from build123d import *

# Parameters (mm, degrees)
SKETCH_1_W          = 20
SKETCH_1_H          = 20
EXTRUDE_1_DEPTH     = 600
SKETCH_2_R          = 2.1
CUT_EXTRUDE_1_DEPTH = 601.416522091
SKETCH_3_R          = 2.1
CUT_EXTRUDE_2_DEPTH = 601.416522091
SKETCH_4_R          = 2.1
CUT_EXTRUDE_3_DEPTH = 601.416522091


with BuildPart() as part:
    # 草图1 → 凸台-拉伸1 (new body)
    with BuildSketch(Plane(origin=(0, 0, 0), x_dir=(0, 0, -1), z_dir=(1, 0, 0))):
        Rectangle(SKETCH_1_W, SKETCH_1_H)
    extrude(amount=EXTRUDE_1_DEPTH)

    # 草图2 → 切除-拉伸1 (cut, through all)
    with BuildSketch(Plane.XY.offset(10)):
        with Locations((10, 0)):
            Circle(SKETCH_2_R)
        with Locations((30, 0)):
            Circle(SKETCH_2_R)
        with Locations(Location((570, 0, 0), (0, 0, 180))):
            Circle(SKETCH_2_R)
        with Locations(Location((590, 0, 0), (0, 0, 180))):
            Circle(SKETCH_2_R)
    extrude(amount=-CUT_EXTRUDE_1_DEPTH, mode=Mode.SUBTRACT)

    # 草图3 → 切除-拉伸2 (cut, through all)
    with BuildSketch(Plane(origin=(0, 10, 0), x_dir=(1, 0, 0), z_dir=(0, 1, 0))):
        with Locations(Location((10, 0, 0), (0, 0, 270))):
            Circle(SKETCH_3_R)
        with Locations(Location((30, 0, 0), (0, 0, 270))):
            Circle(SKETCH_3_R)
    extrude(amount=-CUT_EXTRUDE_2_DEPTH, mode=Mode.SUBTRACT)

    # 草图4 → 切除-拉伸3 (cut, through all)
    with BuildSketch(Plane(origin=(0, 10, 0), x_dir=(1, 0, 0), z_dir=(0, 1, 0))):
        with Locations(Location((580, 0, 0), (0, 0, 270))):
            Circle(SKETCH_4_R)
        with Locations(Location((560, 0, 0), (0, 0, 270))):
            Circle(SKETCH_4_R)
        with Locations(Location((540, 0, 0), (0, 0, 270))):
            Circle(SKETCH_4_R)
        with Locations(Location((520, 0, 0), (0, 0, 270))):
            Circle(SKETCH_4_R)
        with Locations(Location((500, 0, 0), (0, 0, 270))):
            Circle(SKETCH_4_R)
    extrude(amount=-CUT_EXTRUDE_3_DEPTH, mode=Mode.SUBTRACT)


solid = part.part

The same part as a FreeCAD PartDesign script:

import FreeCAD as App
import Part
import Sketcher
from FreeCAD import Vector

doc = App.newDocument("Part")
body = doc.addObject("PartDesign::Body", "Body")

sketch1 = body.newObject("Sketcher::SketchObject", "Sketch")
sketch1.AttachmentSupport = (doc.getObject("YZ_Plane"), [""])
sketch1.MapMode = "FlatFace"
sketch1.addGeometry(Part.LineSegment(Vector(10, 10, 0), Vector(-10, 10, 0)), False)
sketch1.addGeometry(Part.LineSegment(Vector(-10, 10, 0), Vector(-10, -10, 0)), False)
sketch1.addGeometry(Part.LineSegment(Vector(-10, -10, 0), Vector(10, -10, 0)), False)
sketch1.addGeometry(Part.LineSegment(Vector(10, -10, 0), Vector(10, 10, 0)), False)
sketch1.addConstraint(Sketcher.Constraint("Coincident", 0, 2, 1, 1))
sketch1.addConstraint(Sketcher.Constraint("Coincident", 1, 2, 2, 1))
sketch1.addConstraint(Sketcher.Constraint("Coincident", 2, 2, 3, 1))
sketch1.addConstraint(Sketcher.Constraint("Coincident", 3, 2, 0, 1))
sketch1.addConstraint(Sketcher.Constraint("Horizontal", 0))
sketch1.addConstraint(Sketcher.Constraint("Vertical", 1))
sketch1.addConstraint(Sketcher.Constraint("Horizontal", 2))
sketch1.addConstraint(Sketcher.Constraint("Vertical", 3))
sketch1.addConstraint(Sketcher.Constraint("Symmetric", 0, 2, 2, 2, -1, 1))
sketch1.addConstraint(Sketcher.Constraint("Equal", 2, 1))
sketch1.addConstraint(Sketcher.Constraint("DistanceX", 0, 2, 0, 1, 20.0))
pad1 = body.newObject("PartDesign::Pad", "Pad")
pad1.Profile = sketch1
pad1.Length = 600

sketch2 = body.newObject("Sketcher::SketchObject", "Sketch001")
sketch2.AttachmentSupport = (doc.getObject("XY_Plane"), [""])
sketch2.MapMode = "FlatFace"
sketch2.AttachmentOffset = App.Placement(Vector(0, 0, 10), App.Rotation())
sketch2.addGeometry(Part.Circle(Vector(10, 0, 0), Vector(0, 0, 1), 2.1), False)
sketch2.addGeometry(Part.Circle(Vector(30, 0, 0), Vector(0, 0, 1), 2.1), False)
sketch2.addGeometry(Part.Circle(Vector(570, 0, 0), Vector(0, 0, 1), 2.1), False)
sketch2.addGeometry(Part.Circle(Vector(590, 0, 0), Vector(0, 0, 1), 2.1), False)
sketch2.addConstraint(Sketcher.Constraint("Equal", 0, 1))
sketch2.addConstraint(Sketcher.Constraint("Equal", 1, 2))
sketch2.addConstraint(Sketcher.Constraint("Equal", 2, 3))
sketch2.addConstraint(Sketcher.Constraint("PointOnObject", 0, 3, -1))
sketch2.addConstraint(Sketcher.Constraint("PointOnObject", 1, 3, -1))
sketch2.addConstraint(Sketcher.Constraint("PointOnObject", 2, 3, -1))
sketch2.addConstraint(Sketcher.Constraint("PointOnObject", 3, 3, -1))
sketch2.addConstraint(Sketcher.Constraint("Diameter", 0, 4.2))
sketch2.addConstraint(Sketcher.Constraint("DistanceX", -1, 1, 0, 3, 10.0))
sketch2.addConstraint(Sketcher.Constraint("DistanceX", -1, 1, 1, 3, 30.0))
sketch2.addConstraint(Sketcher.Constraint("DistanceX", -1, 1, 2, 3, 570.0))
sketch2.addConstraint(Sketcher.Constraint("DistanceX", -1, 1, 3, 3, 590.0))
pocket1 = body.newObject("PartDesign::Pocket", "Pocket")
pocket1.Profile = sketch2
pocket1.Type = "ThroughAll"

sketch3 = body.newObject("Sketcher::SketchObject", "Sketch002")
sketch3.AttachmentSupport = (doc.getObject("XZ_Plane"), [""])
sketch3.MapMode = "FlatFace"
sketch3.AttachmentOffset = App.Placement(Vector(0, 0, -10), App.Rotation())
sketch3.addGeometry(Part.Circle(Vector(10, 0, 0), Vector(0, 0, 1), 2.1), False)
sketch3.addGeometry(Part.Circle(Vector(30, 0, 0), Vector(0, 0, 1), 2.1), False)
sketch3.addConstraint(Sketcher.Constraint("Equal", 0, 1))
sketch3.addConstraint(Sketcher.Constraint("PointOnObject", 0, 3, -1))
sketch3.addConstraint(Sketcher.Constraint("PointOnObject", 1, 3, -1))
sketch3.addConstraint(Sketcher.Constraint("Diameter", 0, 4.2))
sketch3.addConstraint(Sketcher.Constraint("DistanceX", -1, 1, 0, 3, 10.0))
sketch3.addConstraint(Sketcher.Constraint("DistanceX", -1, 1, 1, 3, 30.0))
pocket2 = body.newObject("PartDesign::Pocket", "Pocket001")
pocket2.Profile = sketch3
pocket2.Type = "ThroughAll"
pocket2.Reversed = True

sketch4 = body.newObject("Sketcher::SketchObject", "Sketch003")
sketch4.AttachmentSupport = (doc.getObject("XZ_Plane"), [""])
sketch4.MapMode = "FlatFace"
sketch4.AttachmentOffset = App.Placement(Vector(0, 0, -10), App.Rotation())
sketch4.addGeometry(Part.Circle(Vector(580, 0, 0), Vector(0, 0, 1), 2.1), False)
sketch4.addGeometry(Part.Circle(Vector(560, 0, 0), Vector(0, 0, 1), 2.1), False)
sketch4.addGeometry(Part.Circle(Vector(540, 0, 0), Vector(0, 0, 1), 2.1), False)
sketch4.addGeometry(Part.Circle(Vector(520, 0, 0), Vector(0, 0, 1), 2.1), False)
sketch4.addGeometry(Part.Circle(Vector(500, 0, 0), Vector(0, 0, 1), 2.1), False)
sketch4.addConstraint(Sketcher.Constraint("Equal", 0, 1))
sketch4.addConstraint(Sketcher.Constraint("Equal", 1, 2))
sketch4.addConstraint(Sketcher.Constraint("Equal", 2, 3))
sketch4.addConstraint(Sketcher.Constraint("Equal", 3, 4))
sketch4.addConstraint(Sketcher.Constraint("PointOnObject", 0, 3, -1))
sketch4.addConstraint(Sketcher.Constraint("PointOnObject", 1, 3, -1))
sketch4.addConstraint(Sketcher.Constraint("PointOnObject", 2, 3, -1))
sketch4.addConstraint(Sketcher.Constraint("PointOnObject", 3, 3, -1))
sketch4.addConstraint(Sketcher.Constraint("PointOnObject", 4, 3, -1))
sketch4.addConstraint(Sketcher.Constraint("Diameter", 0, 4.2))
sketch4.addConstraint(Sketcher.Constraint("DistanceX", -1, 1, 0, 3, 580.0))
sketch4.addConstraint(Sketcher.Constraint("DistanceX", -1, 1, 1, 3, 560.0))
sketch4.addConstraint(Sketcher.Constraint("DistanceX", -1, 1, 2, 3, 540.0))
sketch4.addConstraint(Sketcher.Constraint("DistanceX", -1, 1, 3, 3, 520.0))
sketch4.addConstraint(Sketcher.Constraint("DistanceX", -1, 1, 4, 3, 500.0))
pocket3 = body.newObject("PartDesign::Pocket", "Pocket002")
pocket3.Profile = sketch4
pocket3.Type = "ThroughAll"
pocket3.Reversed = True

doc.recompute()
